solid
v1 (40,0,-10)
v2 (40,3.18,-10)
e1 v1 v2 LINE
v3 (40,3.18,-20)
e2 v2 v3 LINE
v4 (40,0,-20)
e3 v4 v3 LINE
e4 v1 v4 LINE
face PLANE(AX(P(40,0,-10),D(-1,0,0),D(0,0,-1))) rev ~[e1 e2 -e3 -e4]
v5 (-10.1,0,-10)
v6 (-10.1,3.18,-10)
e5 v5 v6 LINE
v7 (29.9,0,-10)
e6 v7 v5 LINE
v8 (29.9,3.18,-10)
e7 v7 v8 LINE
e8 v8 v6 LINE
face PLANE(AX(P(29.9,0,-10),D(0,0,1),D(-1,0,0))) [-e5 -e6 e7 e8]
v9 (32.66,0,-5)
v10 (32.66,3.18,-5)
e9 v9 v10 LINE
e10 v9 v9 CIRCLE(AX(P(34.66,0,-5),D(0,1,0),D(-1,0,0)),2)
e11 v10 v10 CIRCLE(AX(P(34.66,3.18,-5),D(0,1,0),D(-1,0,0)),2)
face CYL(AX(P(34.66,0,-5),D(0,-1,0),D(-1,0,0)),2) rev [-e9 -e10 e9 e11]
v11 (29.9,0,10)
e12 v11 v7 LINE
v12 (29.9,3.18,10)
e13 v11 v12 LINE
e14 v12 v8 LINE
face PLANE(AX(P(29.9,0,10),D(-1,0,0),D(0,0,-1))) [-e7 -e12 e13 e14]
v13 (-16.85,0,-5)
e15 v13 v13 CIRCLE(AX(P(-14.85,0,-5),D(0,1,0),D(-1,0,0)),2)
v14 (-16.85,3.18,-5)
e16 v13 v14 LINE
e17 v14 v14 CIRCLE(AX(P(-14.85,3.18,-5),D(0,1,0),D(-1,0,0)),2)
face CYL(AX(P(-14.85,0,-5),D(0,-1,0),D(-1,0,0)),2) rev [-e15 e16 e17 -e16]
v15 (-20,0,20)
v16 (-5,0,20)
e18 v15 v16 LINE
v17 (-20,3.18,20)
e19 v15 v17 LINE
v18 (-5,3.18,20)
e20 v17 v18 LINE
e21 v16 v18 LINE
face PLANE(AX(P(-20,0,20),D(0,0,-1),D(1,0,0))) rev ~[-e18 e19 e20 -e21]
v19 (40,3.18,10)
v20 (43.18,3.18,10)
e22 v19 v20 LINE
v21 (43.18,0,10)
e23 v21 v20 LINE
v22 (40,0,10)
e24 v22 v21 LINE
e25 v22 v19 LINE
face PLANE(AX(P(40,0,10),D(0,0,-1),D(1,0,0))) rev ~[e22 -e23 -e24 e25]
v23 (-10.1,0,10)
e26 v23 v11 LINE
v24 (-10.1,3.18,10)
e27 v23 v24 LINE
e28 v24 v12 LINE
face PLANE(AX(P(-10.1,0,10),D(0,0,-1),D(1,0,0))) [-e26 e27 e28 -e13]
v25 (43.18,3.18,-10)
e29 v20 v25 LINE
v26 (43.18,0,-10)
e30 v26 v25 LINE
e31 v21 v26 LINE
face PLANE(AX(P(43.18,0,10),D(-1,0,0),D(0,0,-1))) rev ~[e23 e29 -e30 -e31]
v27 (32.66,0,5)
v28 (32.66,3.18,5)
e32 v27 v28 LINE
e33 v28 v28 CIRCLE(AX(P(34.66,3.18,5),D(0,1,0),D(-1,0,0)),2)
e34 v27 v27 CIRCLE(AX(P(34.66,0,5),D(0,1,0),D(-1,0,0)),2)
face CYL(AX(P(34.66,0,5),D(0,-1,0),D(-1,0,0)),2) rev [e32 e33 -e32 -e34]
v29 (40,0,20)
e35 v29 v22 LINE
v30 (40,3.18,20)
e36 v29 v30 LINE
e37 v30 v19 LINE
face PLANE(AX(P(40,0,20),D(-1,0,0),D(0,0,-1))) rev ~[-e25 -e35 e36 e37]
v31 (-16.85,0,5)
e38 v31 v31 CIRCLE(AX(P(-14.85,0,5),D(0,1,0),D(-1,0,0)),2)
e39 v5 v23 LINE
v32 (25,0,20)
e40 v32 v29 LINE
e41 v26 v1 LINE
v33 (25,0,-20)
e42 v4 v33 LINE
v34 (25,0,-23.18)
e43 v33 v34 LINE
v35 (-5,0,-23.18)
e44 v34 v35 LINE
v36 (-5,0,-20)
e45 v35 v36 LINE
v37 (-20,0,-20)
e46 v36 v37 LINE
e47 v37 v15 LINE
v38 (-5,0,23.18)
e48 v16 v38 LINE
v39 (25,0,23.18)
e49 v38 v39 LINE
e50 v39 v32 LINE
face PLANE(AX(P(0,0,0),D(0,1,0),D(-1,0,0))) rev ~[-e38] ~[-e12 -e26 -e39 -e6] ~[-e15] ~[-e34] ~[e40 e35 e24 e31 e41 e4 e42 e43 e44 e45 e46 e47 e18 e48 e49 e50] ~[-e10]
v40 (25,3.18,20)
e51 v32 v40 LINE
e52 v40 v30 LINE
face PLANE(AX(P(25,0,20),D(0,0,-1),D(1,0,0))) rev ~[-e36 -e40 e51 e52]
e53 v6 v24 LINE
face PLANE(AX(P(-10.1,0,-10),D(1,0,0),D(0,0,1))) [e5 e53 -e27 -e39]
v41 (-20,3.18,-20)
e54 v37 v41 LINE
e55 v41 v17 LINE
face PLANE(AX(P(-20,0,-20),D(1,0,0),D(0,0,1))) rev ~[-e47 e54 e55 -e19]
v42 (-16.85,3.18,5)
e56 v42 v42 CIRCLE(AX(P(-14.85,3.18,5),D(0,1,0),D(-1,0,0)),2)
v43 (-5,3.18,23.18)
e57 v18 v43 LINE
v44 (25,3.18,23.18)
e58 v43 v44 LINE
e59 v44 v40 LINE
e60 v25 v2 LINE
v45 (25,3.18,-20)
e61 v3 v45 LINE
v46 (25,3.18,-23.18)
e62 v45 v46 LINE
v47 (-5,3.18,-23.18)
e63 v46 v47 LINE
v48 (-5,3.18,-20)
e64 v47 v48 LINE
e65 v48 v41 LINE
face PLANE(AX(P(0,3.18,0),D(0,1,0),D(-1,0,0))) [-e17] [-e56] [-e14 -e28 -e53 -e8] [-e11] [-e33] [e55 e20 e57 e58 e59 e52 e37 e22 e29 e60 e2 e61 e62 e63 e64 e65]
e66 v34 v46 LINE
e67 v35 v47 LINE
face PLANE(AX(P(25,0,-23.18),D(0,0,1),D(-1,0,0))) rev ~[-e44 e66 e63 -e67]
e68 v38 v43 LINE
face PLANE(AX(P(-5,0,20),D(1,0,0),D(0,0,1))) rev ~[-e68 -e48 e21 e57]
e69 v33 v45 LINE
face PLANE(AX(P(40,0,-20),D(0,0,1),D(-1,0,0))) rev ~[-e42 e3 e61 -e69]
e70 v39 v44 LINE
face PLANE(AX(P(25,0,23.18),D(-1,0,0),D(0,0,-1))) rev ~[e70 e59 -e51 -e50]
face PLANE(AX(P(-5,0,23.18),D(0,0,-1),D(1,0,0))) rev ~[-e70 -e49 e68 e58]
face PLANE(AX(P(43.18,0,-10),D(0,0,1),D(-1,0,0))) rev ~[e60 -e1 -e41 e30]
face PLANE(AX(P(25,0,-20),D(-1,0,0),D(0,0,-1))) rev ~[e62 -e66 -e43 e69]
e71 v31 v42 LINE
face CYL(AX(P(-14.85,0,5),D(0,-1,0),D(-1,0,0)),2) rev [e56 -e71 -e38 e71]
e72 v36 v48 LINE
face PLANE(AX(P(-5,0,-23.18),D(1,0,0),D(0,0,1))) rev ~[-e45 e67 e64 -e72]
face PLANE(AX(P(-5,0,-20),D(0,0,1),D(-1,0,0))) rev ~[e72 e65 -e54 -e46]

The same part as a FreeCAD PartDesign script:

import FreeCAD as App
import Part
import Sketcher

V = App.Vector


def add_polygon(sketch, points):
    """Adds a closed chain of lines whose ends are joined by coincident constraints."""
    first, n = sketch.GeometryCount, len(points)
    for a, b in zip(points, points[1:] + points[:1]):
        sketch.addGeometry(Part.LineSegment(App.Vector(*a, 0), App.Vector(*b, 0)), False)
    for i in range(n):
        sketch.addConstraint(Sketcher.Constraint("Coincident", first + i, 2, first + (i + 1) % n, 1))

doc = App.newDocument("Part")
params = doc.addObject("Spreadsheet::Sheet", "Params")
for row, (alias, value) in enumerate([
    ("sketch1_diameter", "4 mm"),
    ("sketch1_width", "15 mm"),
    ("sketch1_width2", "30 mm"),
    ("sketch1_width3", "40 mm"),
    ("sketch1_height", "10 mm"),
    ("pad1_length", "3.18 mm"),
], start=1):
    params.set(f"A{row}", alias)
    params.set(f"B{row}", "=" + value)
    params.setAlias(f"B{row}", alias)

body = doc.addObject("PartDesign::Body", "Body")

sketch1 = body.newObject("Sketcher::SketchObject", "Sketch")
sketch1.AttachmentSupport = (doc.getObject("XZ_Plane"), [""])
sketch1.MapMode = "FlatFace"
add_polygon(sketch1, [(-20, -20), (-20, 20), (-5, 20), (-5, 23.2), (25, 23.2), (25, 20), (40, 20), (40, 10), (43.2, 10), (43.2, -10), (40, -10), (40, -20), (25, -20), (25, -23.2), (-5, -23.2), (-5, -20)])
sketch1.addGeometry(Part.Circle(V(34.7, -5, 0), V(0, 0, 1), 2), False)
sketch1.addGeometry(Part.Circle(V(-14.8, -5, 0), V(0, 0, 1), 2), False)
sketch1.addGeometry(Part.Circle(V(34.7, 5, 0), V(0, 0, 1), 2), False)
add_polygon(sketch1, [(29.9, 10), (-10.1, 10), (-10.1, -10), (29.9, -10)])
sketch1.addGeometry(Part.Circle(V(-14.8, 5, 0), V(0, 0, 1), 2), False)
sketch1.addConstraint([
    Sketcher.Constraint("Vertical", 0),
    Sketcher.Constraint("Horizontal", 1),
    Sketcher.Constraint("Vertical", 2),
    Sketcher.Constraint("Horizontal", 3),
    Sketcher.Constraint("Vertical", 4),
    Sketcher.Constraint("Horizontal", 5),
    Sketcher.Constraint("Vertical", 6),
    Sketcher.Constraint("Horizontal", 7),
    Sketcher.Constraint("Vertical", 8),
    Sketcher.Constraint("Horizontal", 9),
    Sketcher.Constraint("Vertical", 10),
    Sketcher.Constraint("Horizontal", 11),
    Sketcher.Constraint("Vertical", 12),
    Sketcher.Constraint("Horizontal", 13),
    Sketcher.Constraint("Vertical", 14),
    Sketcher.Constraint("Horizontal", 15),
    Sketcher.Constraint("Horizontal", 19),
    Sketcher.Constraint("Vertical", 20),
    Sketcher.Constraint("Horizontal", 21),
    Sketcher.Constraint("Vertical", 22),
    Sketcher.Constraint("Equal", 16, 17),
    Sketcher.Constraint("Equal", 17, 18),
    Sketcher.Constraint("Equal", 18, 23),
    Sketcher.Constraint("Symmetric", 16, 3, 18, 3, -1),
    Sketcher.Constraint("Symmetric", 17, 3, 23, 3, -1),
    Sketcher.Constraint("Symmetric", 6, 2, 9, 2, -1),
    Sketcher.Constraint("Symmetric", 4, 2, 11, 2, -1),
    Sketcher.Constraint("Symmetric", 2, 2, 13, 2, -1),
    Sketcher.Constraint("Horizontal", 16, 3, 17, 3),
    Sketcher.Constraint("Horizontal", 1, 2, 4, 2),
    Sketcher.Constraint("Horizontal", 11, 2, 14, 2),
    Sketcher.Constraint("Horizontal", 7, 2, 19, 2),
    Sketcher.Constraint("Horizontal", 9, 2, 20, 2),
    Sketcher.Constraint("Equal", 1, 5),
    Sketcher.Constraint("Equal", 21, 0),
    Sketcher.Constraint("Equal", 9, 2),
    Sketcher.Constraint("Diameter", 16, 4.0),
    Sketcher.Constraint("DistanceX", 1, 1, 1, 2, 15.0),
    Sketcher.Constraint("DistanceX", 3, 1, 3, 2, 30.0),
    Sketcher.Constraint("DistanceX", 19, 2, 19, 1, 40.0),
    Sketcher.Constraint("DistanceY", 6, 2, 6, 1, 10.0),
    Sketcher.Constraint("DistanceY", 16, 3, -1, 1, 5.0),
    Sketcher.Constraint("DistanceX", 0, 2, -1, 1, 20.0),
    Sketcher.Constraint("DistanceX", 7, 1, 7, 2, 3.18),
    Sketcher.Constraint("DistanceX", 19, 2, -1, 1, 10.1),
    Sketcher.Constraint("DistanceX", -1, 1, 16, 3, 34.66),
    Sketcher.Constraint("DistanceX", 17, 3, -1, 1, 14.85),
])
sketch1.setExpression("Constraints[56]", "Params.sketch1_diameter")
sketch1.setExpression("Constraints[57]", "Params.sketch1_width")
sketch1.setExpression("Constraints[58]", "Params.sketch1_width2")
sketch1.setExpression("Constraints[59]", "Params.sketch1_width3")
sketch1.setExpression("Constraints[60]", "Params.sketch1_height")
pad1 = body.newObject("PartDesign::Pad", "Pad")
pad1.Profile = sketch1
pad1.setExpression("Length", "Params.pad1_length")
pad1.Reversed = True

doc.recompute()
